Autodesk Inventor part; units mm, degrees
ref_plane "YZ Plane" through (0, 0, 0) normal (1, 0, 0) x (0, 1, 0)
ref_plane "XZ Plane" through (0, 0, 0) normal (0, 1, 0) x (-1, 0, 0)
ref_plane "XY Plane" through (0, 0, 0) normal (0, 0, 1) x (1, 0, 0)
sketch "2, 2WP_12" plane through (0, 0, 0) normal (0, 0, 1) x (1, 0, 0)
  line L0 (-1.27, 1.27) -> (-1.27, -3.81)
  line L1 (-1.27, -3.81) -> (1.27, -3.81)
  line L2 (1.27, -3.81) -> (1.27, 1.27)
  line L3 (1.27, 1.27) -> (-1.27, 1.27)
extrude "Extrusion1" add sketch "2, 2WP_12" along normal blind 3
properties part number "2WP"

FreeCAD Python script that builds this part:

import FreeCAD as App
import Part
import Sketcher

V = App.Vector
Q = App.Units.Quantity


def add_polygon(sketch, points):
    """Adds a closed chain of lines whose ends are joined by coincident constraints."""
    first, n = sketch.GeometryCount, len(points)
    for a, b in zip(points, points[1:] + points[:1]):
        sketch.addGeometry(Part.LineSegment(App.Vector(*a, 0), App.Vector(*b, 0)), False)
    for i in range(n):
        sketch.addConstraint(Sketcher.Constraint("Coincident", first + i, 2, first + (i + 1) % n, 1))

doc = App.newDocument("Part")
params = doc.addObject("Spreadsheet::Sheet", "Params")
for row, (alias, value) in enumerate([
    ("sketch1_width", "0.1 in"),
    ("sketch1_height", "0.2 in"),
    ("pad1_length", "0.1181102 in"),
], start=1):
    params.set(f"A{row}", alias)
    params.set(f"B{row}", "=" + value)
    params.setAlias(f"B{row}", alias)

body = doc.addObject("PartDesign::Body", "Body")

# Sketch on XY plane
sketch1 = body.newObject("Sketcher::SketchObject", "Sketch")
sketch1.AttachmentSupport = (doc.getObject("XY_Plane"), [""])
sketch1.MapMode = "FlatFace"
add_polygon(sketch1, [(1.27, 1.27), (-1.27, 1.27), (-1.27, -3.81), (1.27, -3.81)])  # lines 0-3
sketch1.addConstraint([
    Sketcher.Constraint("Horizontal", 0),
    Sketcher.Constraint("Vertical", 1),
    Sketcher.Constraint("Horizontal", 2),
    Sketcher.Constraint("Vertical", 3),
    Sketcher.Constraint("DistanceX", 0, 2, 0, 1, Q("0.1 in")),
    Sketcher.Constraint("DistanceY", 1, 2, 1, 1, Q("0.2 in")),
    Sketcher.Constraint("DistanceX", 0, 2, -1, 1, Q("0.05 in")),
    Sketcher.Constraint("DistanceY", -1, 1, 0, 2, Q("0.05 in")),
])
sketch1.setExpression("Constraints[8]", "Params.sketch1_width")
sketch1.setExpression("Constraints[9]", "Params.sketch1_height")
pad1 = body.newObject("PartDesign::Pad", "Pad")
pad1.Profile = sketch1
pad1.setExpression("Length", "Params.pad1_length")

doc.recompute()
